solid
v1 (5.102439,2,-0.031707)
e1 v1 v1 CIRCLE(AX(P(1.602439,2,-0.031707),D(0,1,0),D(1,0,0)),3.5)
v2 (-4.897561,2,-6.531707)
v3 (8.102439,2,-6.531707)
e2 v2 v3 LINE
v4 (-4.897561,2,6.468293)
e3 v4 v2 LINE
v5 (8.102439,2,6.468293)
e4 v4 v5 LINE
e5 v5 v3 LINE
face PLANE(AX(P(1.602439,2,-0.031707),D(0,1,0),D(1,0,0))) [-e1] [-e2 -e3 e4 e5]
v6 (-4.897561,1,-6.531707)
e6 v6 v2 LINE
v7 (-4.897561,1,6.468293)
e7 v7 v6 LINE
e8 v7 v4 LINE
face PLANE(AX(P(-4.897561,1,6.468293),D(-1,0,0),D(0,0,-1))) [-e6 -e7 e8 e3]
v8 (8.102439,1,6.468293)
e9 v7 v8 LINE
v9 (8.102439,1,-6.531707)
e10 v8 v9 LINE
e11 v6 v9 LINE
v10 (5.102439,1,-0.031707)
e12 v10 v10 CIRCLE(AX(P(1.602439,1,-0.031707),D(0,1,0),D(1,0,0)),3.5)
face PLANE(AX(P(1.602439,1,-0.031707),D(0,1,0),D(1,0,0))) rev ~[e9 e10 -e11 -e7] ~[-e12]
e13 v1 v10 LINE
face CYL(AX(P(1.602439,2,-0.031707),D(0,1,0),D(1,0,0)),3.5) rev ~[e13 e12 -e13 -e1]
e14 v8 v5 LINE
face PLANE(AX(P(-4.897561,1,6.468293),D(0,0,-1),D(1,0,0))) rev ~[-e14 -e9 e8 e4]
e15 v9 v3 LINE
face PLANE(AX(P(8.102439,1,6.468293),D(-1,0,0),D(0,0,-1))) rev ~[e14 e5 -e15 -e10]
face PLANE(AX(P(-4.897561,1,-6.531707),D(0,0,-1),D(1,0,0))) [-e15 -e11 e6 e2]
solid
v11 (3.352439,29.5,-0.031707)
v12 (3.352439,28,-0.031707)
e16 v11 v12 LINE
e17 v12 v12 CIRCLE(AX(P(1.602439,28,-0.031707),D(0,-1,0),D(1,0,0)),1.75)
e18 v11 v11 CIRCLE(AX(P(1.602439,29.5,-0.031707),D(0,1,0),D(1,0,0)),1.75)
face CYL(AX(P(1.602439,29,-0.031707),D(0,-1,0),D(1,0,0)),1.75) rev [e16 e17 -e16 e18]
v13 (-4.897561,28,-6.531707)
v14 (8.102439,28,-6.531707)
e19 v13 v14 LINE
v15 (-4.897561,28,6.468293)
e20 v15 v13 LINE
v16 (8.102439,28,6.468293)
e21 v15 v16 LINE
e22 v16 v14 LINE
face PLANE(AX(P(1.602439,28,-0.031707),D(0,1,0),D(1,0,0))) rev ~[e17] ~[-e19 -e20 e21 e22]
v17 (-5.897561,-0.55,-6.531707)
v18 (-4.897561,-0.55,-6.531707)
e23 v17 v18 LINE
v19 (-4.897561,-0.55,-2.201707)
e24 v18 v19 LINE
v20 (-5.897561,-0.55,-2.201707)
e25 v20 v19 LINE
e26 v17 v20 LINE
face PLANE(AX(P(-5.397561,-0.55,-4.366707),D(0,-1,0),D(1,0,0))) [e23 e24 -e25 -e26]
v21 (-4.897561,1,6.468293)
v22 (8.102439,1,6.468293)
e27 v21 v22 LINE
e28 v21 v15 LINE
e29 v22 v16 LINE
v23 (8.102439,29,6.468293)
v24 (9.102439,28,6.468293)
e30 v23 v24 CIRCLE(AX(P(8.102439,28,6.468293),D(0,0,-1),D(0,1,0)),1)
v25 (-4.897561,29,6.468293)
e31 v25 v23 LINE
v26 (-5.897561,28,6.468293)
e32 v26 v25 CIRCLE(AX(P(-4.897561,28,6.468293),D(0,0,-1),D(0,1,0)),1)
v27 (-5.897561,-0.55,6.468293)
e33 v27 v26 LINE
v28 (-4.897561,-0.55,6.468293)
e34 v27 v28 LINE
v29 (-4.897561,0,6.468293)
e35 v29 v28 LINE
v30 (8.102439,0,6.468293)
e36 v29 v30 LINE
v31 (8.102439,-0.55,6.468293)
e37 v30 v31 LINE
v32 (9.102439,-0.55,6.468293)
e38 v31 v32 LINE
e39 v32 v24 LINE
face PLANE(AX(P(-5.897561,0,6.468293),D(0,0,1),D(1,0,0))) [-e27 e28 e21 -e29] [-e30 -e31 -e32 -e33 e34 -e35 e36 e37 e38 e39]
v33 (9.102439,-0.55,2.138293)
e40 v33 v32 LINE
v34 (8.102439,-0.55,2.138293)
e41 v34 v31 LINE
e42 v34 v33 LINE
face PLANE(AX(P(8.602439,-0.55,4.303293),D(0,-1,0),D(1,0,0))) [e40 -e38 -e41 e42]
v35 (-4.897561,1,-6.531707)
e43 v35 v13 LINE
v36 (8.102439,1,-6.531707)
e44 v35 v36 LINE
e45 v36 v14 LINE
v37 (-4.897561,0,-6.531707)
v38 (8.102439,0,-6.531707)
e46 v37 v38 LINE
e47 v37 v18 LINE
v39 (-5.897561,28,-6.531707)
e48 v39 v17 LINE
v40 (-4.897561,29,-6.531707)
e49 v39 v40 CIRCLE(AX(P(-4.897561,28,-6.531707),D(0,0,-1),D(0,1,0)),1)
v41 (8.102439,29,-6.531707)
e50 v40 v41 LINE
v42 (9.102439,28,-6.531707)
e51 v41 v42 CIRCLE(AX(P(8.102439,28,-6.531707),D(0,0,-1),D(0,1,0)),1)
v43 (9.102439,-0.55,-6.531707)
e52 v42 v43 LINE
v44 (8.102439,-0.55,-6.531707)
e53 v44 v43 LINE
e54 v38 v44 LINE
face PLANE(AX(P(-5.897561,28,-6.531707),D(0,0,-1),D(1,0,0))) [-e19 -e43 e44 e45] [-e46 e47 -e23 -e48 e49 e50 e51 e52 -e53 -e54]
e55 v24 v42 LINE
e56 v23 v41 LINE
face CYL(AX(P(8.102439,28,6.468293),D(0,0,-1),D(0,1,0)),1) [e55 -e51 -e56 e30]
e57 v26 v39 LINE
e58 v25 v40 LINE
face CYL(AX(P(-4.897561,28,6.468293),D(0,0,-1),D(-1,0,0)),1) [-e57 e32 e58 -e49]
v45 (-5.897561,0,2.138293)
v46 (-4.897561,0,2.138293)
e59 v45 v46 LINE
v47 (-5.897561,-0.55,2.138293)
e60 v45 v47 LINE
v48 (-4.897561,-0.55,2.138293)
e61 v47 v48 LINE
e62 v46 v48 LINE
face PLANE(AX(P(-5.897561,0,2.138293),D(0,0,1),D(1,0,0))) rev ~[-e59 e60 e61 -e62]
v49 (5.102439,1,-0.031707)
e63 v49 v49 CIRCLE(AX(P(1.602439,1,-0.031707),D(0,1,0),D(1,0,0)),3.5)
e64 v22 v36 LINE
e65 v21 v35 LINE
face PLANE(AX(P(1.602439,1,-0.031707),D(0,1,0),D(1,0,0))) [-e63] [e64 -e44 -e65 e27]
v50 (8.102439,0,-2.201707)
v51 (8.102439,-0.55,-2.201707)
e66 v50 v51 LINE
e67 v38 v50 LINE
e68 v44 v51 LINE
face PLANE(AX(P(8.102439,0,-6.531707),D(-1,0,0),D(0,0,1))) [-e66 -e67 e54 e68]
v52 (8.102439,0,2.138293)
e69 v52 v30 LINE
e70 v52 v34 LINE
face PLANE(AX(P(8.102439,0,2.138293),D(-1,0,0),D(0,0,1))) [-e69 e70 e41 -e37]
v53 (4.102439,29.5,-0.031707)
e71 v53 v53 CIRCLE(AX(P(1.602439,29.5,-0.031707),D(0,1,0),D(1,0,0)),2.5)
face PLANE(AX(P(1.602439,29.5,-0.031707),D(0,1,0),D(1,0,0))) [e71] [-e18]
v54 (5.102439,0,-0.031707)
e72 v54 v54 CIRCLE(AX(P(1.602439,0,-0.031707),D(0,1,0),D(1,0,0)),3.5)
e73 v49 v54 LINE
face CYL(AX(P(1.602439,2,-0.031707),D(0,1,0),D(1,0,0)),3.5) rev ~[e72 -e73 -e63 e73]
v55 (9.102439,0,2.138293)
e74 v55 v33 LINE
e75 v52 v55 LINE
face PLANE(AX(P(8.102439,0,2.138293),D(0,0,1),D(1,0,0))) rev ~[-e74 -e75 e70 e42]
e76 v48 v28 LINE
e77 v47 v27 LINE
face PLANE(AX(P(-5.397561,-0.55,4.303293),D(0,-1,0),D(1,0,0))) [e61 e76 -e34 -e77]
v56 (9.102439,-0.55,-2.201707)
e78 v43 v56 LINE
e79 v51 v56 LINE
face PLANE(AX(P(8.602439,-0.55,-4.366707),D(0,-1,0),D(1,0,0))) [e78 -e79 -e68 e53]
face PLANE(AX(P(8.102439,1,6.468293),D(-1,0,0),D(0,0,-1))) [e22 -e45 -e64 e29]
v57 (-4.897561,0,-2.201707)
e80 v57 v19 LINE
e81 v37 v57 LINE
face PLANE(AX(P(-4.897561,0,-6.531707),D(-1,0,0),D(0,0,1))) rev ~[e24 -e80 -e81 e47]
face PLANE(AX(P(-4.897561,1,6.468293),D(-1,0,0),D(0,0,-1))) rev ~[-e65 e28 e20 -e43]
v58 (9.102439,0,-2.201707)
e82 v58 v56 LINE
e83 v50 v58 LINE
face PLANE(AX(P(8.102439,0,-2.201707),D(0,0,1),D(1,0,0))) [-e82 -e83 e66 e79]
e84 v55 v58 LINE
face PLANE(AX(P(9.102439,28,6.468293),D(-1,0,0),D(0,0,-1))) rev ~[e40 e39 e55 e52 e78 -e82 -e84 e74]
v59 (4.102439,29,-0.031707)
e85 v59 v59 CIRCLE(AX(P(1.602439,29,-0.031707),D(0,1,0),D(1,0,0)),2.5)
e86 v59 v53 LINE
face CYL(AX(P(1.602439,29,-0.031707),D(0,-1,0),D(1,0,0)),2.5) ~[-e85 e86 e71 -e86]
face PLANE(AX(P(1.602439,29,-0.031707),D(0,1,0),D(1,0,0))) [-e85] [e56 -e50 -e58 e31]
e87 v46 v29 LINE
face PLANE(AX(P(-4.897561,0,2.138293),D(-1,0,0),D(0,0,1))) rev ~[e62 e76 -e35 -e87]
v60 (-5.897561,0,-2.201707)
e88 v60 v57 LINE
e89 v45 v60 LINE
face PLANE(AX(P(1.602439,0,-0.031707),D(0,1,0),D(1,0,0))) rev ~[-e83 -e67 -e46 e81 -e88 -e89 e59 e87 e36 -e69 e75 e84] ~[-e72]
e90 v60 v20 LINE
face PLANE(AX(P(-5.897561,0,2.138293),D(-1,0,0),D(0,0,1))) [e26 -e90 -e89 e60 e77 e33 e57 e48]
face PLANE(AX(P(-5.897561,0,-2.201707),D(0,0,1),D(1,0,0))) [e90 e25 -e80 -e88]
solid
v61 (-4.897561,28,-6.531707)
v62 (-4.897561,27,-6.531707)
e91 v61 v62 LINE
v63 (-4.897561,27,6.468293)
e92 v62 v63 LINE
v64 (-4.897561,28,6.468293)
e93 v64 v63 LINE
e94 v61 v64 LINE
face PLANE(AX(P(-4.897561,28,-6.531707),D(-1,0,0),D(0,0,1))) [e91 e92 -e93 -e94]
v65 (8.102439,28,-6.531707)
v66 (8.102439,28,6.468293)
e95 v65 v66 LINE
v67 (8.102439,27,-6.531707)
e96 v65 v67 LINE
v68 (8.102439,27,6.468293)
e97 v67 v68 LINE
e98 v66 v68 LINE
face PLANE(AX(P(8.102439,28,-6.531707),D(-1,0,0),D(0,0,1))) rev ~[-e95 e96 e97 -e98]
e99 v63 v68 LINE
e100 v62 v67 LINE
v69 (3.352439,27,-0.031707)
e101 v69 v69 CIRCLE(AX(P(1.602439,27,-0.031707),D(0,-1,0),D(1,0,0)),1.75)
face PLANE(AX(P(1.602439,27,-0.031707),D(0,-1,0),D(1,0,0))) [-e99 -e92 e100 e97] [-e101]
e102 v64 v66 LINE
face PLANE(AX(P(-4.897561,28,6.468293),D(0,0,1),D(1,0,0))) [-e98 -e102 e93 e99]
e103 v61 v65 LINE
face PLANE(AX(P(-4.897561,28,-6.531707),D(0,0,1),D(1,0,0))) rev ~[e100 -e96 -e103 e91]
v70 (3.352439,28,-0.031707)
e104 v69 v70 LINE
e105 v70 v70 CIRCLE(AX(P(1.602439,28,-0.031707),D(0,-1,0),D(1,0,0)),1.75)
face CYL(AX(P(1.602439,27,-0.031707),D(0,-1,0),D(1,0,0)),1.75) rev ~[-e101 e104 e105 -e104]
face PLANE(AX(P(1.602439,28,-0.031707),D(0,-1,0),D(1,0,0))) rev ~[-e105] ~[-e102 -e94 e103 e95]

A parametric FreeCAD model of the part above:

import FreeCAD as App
import Part
import Sketcher


def edges_at(feature, points):
    """Names of the edges that pass closest to the given points."""
    edges = feature.Shape.Edges
    near = lambda p: min(range(len(edges)), key=lambda i: edges[i].distToShape(Part.Vertex(*p))[0])
    return sorted({f"Edge{near(p) + 1}" for p in points})


def add_polygon(sketch, points):
    """Adds a closed chain of lines whose ends are joined by coincident constraints."""
    first, n = sketch.GeometryCount, len(points)
    for a, b in zip(points, points[1:] + points[:1]):
        sketch.addGeometry(Part.LineSegment(App.Vector(*a, 0), App.Vector(*b, 0)), False)
    for i in range(n):
        sketch.addConstraint(Sketcher.Constraint("Coincident", first + i, 2, first + (i + 1) % n, 1))

doc = App.newDocument("Part")
body = doc.addObject("PartDesign::Body", "Body")

# Sketch on XZ plane
sketch1 = doc.addObject("Sketcher::SketchObject", "Sketch")
body.addObject(sketch1)
sketch1.AttachmentSupport = (doc.XZ_Plane, [""])
sketch1.MapMode = "FlatFace"
add_polygon(sketch1, [(-6, -7), (-6, 6), (9, 6), (9, -7)])  # lines 0-3
sketch1.addConstraint([
    Sketcher.Constraint("Vertical", 0),
    Sketcher.Constraint("Horizontal", 1),
    Sketcher.Constraint("Vertical", 2),
    Sketcher.Constraint("Horizontal", 3),
    Sketcher.Constraint("DistanceX", 1, 1, 1, 2, 15.0),
    Sketcher.Constraint("DistanceY", 0, 1, 0, 2, 13.0),
    Sketcher.Constraint("DistanceX", 0, 2, -1, 1, 5.897561),
    Sketcher.Constraint("DistanceY", -1, 1, 0, 2, 6.468293),
])
pad1 = doc.addObject("PartDesign::Pad", "Pad")
body.addObject(pad1)
pad1.Profile = sketch1
pad1.Length = 1
pad1.Reversed = True

# Sketch on XZ plane
sketch2 = doc.addObject("Sketcher::SketchObject", "Sketch001")
body.addObject(sketch2)
sketch2.AttachmentSupport = (doc.XZ_Plane, [""])
sketch2.MapMode = "FlatFace"
sketch2.AttachmentOffset = App.Placement(App.Vector(0, 0, -1), App.Rotation())
add_polygon(sketch2, [(-5.9, -6.5), (-5.9, 6.5), (-4.9, 6.5), (-4.9, -6.5)])  # lines 0-3
add_polygon(sketch2, [(8.1, -6.5), (8.1, 6.5), (9.1, 6.5), (9.1, -6.5)])  # lines 4-7
sketch2.addConstraint([
    Sketcher.Constraint("Vertical", 0),
    Sketcher.Constraint("Horizontal", 1),
    Sketcher.Constraint("Vertical", 2),
    Sketcher.Constraint("Horizontal", 3),
    Sketcher.Constraint("Vertical", 4),
    Sketcher.Constraint("Horizontal", 5),
    Sketcher.Constraint("Vertical", 6),
    Sketcher.Constraint("Horizontal", 7),
    Sketcher.Constraint("Horizontal", 1, 2, 4, 2),
    Sketcher.Constraint("Horizontal", 3, 2, 6, 2),
    Sketcher.Constraint("Equal", 3, 5),
    Sketcher.Constraint("DistanceX", 1, 1, 1, 2, 1.0),
    Sketcher.Constraint("DistanceY", 0, 1, 0, 2, 13.0),
    Sketcher.Constraint("DistanceX", 1, 2, 4, 2, 13.0),
    Sketcher.Constraint("DistanceX", 0, 2, -1, 1, 5.897561),
    Sketcher.Constraint("DistanceY", -1, 1, 0, 2, 6.468293),
])
pad2 = doc.addObject("PartDesign::Pad", "Pad001")
body.addObject(pad2)
pad2.Profile = sketch2
pad2.Length = 27
pad2.Reversed = True

# Sketch on XZ plane
sketch3 = doc.addObject("Sketcher::SketchObject", "Sketch002")
body.addObject(sketch3)
sketch3.AttachmentSupport = (doc.XZ_Plane, [""])
sketch3.MapMode = "FlatFace"
sketch3.AttachmentOffset = App.Placement(App.Vector(0, 0, -28), App.Rotation())
add_polygon(sketch3, [(-6, -7), (-6, 6), (9, 6), (9, -7)])  # lines 0-3
sketch3.addConstraint([
    Sketcher.Constraint("Vertical", 0),
    Sketcher.Constraint("Horizontal", 1),
    Sketcher.Constraint("Vertical", 2),
    Sketcher.Constraint("Horizontal", 3),
    Sketcher.Constraint("DistanceX", 1, 1, 1, 2, 15.0),
    Sketcher.Constraint("DistanceY", 0, 1, 0, 2, 13.0),
    Sketcher.Constraint("DistanceX", 0, 2, -1, 1, 5.897561),
    Sketcher.Constraint("DistanceY", -1, 1, 0, 2, 6.468293),
])
pad3 = doc.addObject("PartDesign::Pad", "Pad002")
body.addObject(pad3)
pad3.Profile = sketch3
pad3.Length = 1
pad3.Reversed = True
doc.recompute()

fillet = doc.addObject("PartDesign::Fillet", "Fillet")
body.addObject(fillet)
fillet.Base = (pad3, edges_at(pad3, [(-5.898, 29, -0.032)]))
fillet.Radius = 1
doc.recompute()

fillet2 = doc.addObject("PartDesign::Fillet", "Fillet001")
body.addObject(fillet2)
fillet2.Base = (fillet, edges_at(fillet, [(9.102, 29, -0.032)]))
fillet2.Radius = 1

# Sketch on XZ plane
sketch4 = doc.addObject("Sketcher::SketchObject", "Sketch003")
body.addObject(sketch4)
sketch4.AttachmentSupport = (doc.XZ_Plane, [""])
sketch4.MapMode = "FlatFace"
add_polygon(sketch4, [(-5.9, 6.5), (-5.9, 2.1), (-4.9, 2.1), (-4.9, 6.5)])  # lines 0-3
add_polygon(sketch4, [(8.1, 6.5), (8.1, 2.1), (9.1, 2.1), (9.1, 6.5)])  # lines 4-7
add_polygon(sketch4, [(-5.9, -2.2), (-5.9, -6.5), (-4.9, -6.5), (-4.9, -2.2)])  # lines 8-11
add_polygon(sketch4, [(8.1, -2.2), (8.1, -6.5), (9.1, -6.5), (9.1, -2.2)])  # lines 12-15
sketch4.addConstraint([
    Sketcher.Constraint("Vertical", 0),
    Sketcher.Constraint("Horizontal", 1),
    Sketcher.Constraint("Vertical", 2),
    Sketcher.Constraint("Horizontal", 3),
    Sketcher.Constraint("Vertical", 4),
    Sketcher.Constraint("Horizontal", 5),
    Sketcher.Constraint("Vertical", 6),
    Sketcher.Constraint("Horizontal", 7),
    Sketcher.Constraint("Vertical", 8),
    Sketcher.Constraint("Horizontal", 9),
    Sketcher.Constraint("Vertical", 10),
    Sketcher.Constraint("Horizontal", 11),
    Sketcher.Constraint("Vertical", 12),
    Sketcher.Constraint("Horizontal", 13),
    Sketcher.Constraint("Vertical", 14),
    Sketcher.Constraint("Horizontal", 15),
    Sketcher.Constraint("Horizontal", 1, 2, 4, 2),
    Sketcher.Constraint("Horizontal", 3, 2, 6, 2),
    Sketcher.Constraint("Horizontal", 9, 2, 12, 2),
    Sketcher.Constraint("Horizontal", 11, 2, 14, 2),
    Sketcher.Constraint("Vertical", 3, 2, 8, 2),
    Sketcher.Constraint("Vertical", 2, 2, 9, 2),
    Sketcher.Constraint("Vertical", 7, 2, 12, 2),
    Sketcher.Constraint("Vertical", 6, 2, 13, 2),
    Sketcher.Constraint("Equal", 3, 5),
    Sketcher.Constraint("Equal", 6, 8),
    Sketcher.Constraint("DistanceX", 1, 1, 1, 2, 1.0),
    Sketcher.Constraint("DistanceX", 1, 2, 4, 2, 13.0),
    Sketcher.Constraint("DistanceY", 8, 2, 3, 2, 13.0),
    Sketcher.Constraint("DistanceY", 0, 2, 0, 1, 4.33),
    Sketcher.Constraint("DistanceX", 0, 2, -1, 1, 5.897561),
    Sketcher.Constraint("DistanceY", -1, 1, 0, 2, 2.138293),
])
pad4 = doc.addObject("PartDesign::Pad", "Pad003")
body.addObject(pad4)
pad4.Profile = sketch4
pad4.Length = 0.55
body2 = doc.addObject("PartDesign::Body", "Body001")

# Sketch on XZ plane
sketch5 = doc.addObject("Sketcher::SketchObject", "Sketch004")
body2.addObject(sketch5)
sketch5.AttachmentSupport = (doc.getObject("XZ_Plane001"), [""])
sketch5.MapMode = "FlatFace"
sketch5.AttachmentOffset = App.Placement(App.Vector(0, 0, -1), App.Rotation())
add_polygon(sketch5, [(-5, -7), (-5, 6), (8, 6), (8, -7)])  # lines 0-3
sketch5.addConstraint([
    Sketcher.Constraint("Vertical", 0),
    Sketcher.Constraint("Horizontal", 1),
    Sketcher.Constraint("Vertical", 2),
    Sketcher.Constraint("Horizontal", 3),
    Sketcher.Constraint("Equal", 3, 0),
    Sketcher.Constraint("DistanceX", 1, 1, 1, 2, 13.0),
    Sketcher.Constraint("DistanceX", 0, 2, -1, 1, 4.897561),
    Sketcher.Constraint("DistanceY", -1, 1, 0, 2, 6.468293),
])
pad5 = doc.addObject("PartDesign::Pad", "Pad004")
body2.addObject(pad5)
pad5.Profile = sketch5
pad5.Length = 1
pad5.Reversed = True
body3 = doc.addObject("PartDesign::Body", "Body002")

# Sketch on XZ plane
sketch6 = doc.addObject("Sketcher::SketchObject", "Sketch005")
body3.addObject(sketch6)
sketch6.AttachmentSupport = (doc.getObject("XZ_Plane002"), [""])
sketch6.MapMode = "FlatFace"
sketch6.AttachmentOffset = App.Placement(App.Vector(0, 0, -28), App.Rotation())
add_polygon(sketch6, [(-5, 6), (-5, -7), (8, -7), (8, 6)])  # lines 0-3
sketch6.addConstraint([
    Sketcher.Constraint("Vertical", 0),
    Sketcher.Constraint("Horizontal", 1),
    Sketcher.Constraint("Vertical", 2),
    Sketcher.Constraint("Horizontal", 3),
    Sketcher.Constraint("Equal", 3, 0),
    Sketcher.Constraint("DistanceX", 1, 1, 1, 2, 13.0),
    Sketcher.Constraint("DistanceX", 0, 2, -1, 1, 4.897561),
    Sketcher.Constraint("DistanceY", 0, 2, -1, 1, 6.531707),
])
pad6 = doc.addObject("PartDesign::Pad", "Pad005")
body3.addObject(pad6)
pad6.Profile = sketch6
pad6.Length = 1
body4 = doc.addObject("PartDesign::Body", "Body003")

# Sketch on XZ plane
sketch7 = doc.addObject("Sketcher::SketchObject", "Sketch006")
body4.addObject(sketch7)
sketch7.AttachmentSupport = (doc.getObject("XZ_Plane003"), [""])
sketch7.MapMode = "FlatFace"
sketch7.AttachmentOffset = App.Placement(App.Vector(0, 0, -2), App.Rotation())
sketch7.addGeometry(Part.Circle(App.Vector(1.6, 0, 0), App.Vector(0, 0, 1), 3.5), False)
sketch7.addConstraint([
    Sketcher.Constraint("Diameter", 0, 7.0),
    Sketcher.Constraint("DistanceX", -1, 1, 0, 3, 1.602439),
    Sketcher.Constraint("DistanceY", 0, 3, -1, 1, 0.031707),
])
pad7 = doc.addObject("PartDesign::Pad", "Pad006")
body4.addObject(pad7)
pad7.Profile = sketch7
pad7.Length = 3.55
doc.recompute()

body5 = doc.addObject("PartDesign::Body", "Body004")
body5.BaseFeature = body4
boolean = doc.addObject("PartDesign::Boolean", "Boolean")
body.addObject(boolean)
boolean.Type = "Cut"
boolean.addObjects([body5])
doc.recompute()

boolean2 = doc.addObject("PartDesign::Boolean", "Boolean001")
body2.addObject(boolean2)
boolean2.Type = "Cut"
boolean2.addObjects([body4])
body6 = doc.addObject("PartDesign::Body", "Body005")

# Sketch on XZ plane
sketch8 = doc.addObject("Sketcher::SketchObject", "Sketch007")
body6.addObject(sketch8)
sketch8.AttachmentSupport = (doc.getObject("XZ_Plane005"), [""])
sketch8.MapMode = "FlatFace"
sketch8.AttachmentOffset = App.Placement(App.Vector(0, 0, -27), App.Rotation())
sketch8.addGeometry(Part.Circle(App.Vector(1.6, 0, 0), App.Vector(0, 0, 1), 1.8), False)
sketch8.addConstraint([
    Sketcher.Constraint("Diameter", 0, 3.5),
    Sketcher.Constraint("DistanceX", -1, 1, 0, 3, 1.602439),
    Sketcher.Constraint("DistanceY", 0, 3, -1, 1, 0.031707),
])
pad8 = doc.addObject("PartDesign::Pad", "Pad007")
body6.addObject(pad8)
pad8.Profile = sketch8
pad8.Length = 3
pad8.Reversed = True
doc.recompute()

body7 = doc.addObject("PartDesign::Body", "Body006")
body7.BaseFeature = body6
boolean3 = doc.addObject("PartDesign::Boolean", "Boolean002")
body.addObject(boolean3)
boolean3.Type = "Cut"
boolean3.addObjects([body7])
doc.recompute()

# Sketch on XZ plane
sketch9 = doc.addObject("Sketcher::SketchObject", "Sketch008")
body.addObject(sketch9)
sketch9.AttachmentSupport = (doc.XZ_Plane, [""])
sketch9.MapMode = "FlatFace"
sketch9.AttachmentOffset = App.Placement(App.Vector(0, 0, -29), App.Rotation())
sketch9.addGeometry([
    Part.Circle(App.Vector(1.6, 0, 0), App.Vector(0, 0, 1), 2.5),
    Part.Circle(App.Vector(1.6, 0, 0), App.Vector(0, 0, 1), 1.8),
], False)
sketch9.addConstraint([
    Sketcher.Constraint("Coincident", 1, 3, 0, 3),
    Sketcher.Constraint("Diameter", 0, 5.0),
    Sketcher.Constraint("Diameter", 1, 3.5),
    Sketcher.Constraint("DistanceX", -1, 1, 0, 3, 1.602439),
    Sketcher.Constraint("DistanceY", 0, 3, -1, 1, 0.031707),
])
pad9 = doc.addObject("PartDesign::Pad", "Pad008")
body.addObject(pad9)
pad9.Profile = sketch9
pad9.Length = 0.5
pad9.Reversed = True
doc.recompute()

boolean4 = doc.addObject("PartDesign::Boolean", "Boolean003")
body3.addObject(boolean4)
boolean4.Type = "Cut"
boolean4.addObjects([body6])

doc.recompute()
